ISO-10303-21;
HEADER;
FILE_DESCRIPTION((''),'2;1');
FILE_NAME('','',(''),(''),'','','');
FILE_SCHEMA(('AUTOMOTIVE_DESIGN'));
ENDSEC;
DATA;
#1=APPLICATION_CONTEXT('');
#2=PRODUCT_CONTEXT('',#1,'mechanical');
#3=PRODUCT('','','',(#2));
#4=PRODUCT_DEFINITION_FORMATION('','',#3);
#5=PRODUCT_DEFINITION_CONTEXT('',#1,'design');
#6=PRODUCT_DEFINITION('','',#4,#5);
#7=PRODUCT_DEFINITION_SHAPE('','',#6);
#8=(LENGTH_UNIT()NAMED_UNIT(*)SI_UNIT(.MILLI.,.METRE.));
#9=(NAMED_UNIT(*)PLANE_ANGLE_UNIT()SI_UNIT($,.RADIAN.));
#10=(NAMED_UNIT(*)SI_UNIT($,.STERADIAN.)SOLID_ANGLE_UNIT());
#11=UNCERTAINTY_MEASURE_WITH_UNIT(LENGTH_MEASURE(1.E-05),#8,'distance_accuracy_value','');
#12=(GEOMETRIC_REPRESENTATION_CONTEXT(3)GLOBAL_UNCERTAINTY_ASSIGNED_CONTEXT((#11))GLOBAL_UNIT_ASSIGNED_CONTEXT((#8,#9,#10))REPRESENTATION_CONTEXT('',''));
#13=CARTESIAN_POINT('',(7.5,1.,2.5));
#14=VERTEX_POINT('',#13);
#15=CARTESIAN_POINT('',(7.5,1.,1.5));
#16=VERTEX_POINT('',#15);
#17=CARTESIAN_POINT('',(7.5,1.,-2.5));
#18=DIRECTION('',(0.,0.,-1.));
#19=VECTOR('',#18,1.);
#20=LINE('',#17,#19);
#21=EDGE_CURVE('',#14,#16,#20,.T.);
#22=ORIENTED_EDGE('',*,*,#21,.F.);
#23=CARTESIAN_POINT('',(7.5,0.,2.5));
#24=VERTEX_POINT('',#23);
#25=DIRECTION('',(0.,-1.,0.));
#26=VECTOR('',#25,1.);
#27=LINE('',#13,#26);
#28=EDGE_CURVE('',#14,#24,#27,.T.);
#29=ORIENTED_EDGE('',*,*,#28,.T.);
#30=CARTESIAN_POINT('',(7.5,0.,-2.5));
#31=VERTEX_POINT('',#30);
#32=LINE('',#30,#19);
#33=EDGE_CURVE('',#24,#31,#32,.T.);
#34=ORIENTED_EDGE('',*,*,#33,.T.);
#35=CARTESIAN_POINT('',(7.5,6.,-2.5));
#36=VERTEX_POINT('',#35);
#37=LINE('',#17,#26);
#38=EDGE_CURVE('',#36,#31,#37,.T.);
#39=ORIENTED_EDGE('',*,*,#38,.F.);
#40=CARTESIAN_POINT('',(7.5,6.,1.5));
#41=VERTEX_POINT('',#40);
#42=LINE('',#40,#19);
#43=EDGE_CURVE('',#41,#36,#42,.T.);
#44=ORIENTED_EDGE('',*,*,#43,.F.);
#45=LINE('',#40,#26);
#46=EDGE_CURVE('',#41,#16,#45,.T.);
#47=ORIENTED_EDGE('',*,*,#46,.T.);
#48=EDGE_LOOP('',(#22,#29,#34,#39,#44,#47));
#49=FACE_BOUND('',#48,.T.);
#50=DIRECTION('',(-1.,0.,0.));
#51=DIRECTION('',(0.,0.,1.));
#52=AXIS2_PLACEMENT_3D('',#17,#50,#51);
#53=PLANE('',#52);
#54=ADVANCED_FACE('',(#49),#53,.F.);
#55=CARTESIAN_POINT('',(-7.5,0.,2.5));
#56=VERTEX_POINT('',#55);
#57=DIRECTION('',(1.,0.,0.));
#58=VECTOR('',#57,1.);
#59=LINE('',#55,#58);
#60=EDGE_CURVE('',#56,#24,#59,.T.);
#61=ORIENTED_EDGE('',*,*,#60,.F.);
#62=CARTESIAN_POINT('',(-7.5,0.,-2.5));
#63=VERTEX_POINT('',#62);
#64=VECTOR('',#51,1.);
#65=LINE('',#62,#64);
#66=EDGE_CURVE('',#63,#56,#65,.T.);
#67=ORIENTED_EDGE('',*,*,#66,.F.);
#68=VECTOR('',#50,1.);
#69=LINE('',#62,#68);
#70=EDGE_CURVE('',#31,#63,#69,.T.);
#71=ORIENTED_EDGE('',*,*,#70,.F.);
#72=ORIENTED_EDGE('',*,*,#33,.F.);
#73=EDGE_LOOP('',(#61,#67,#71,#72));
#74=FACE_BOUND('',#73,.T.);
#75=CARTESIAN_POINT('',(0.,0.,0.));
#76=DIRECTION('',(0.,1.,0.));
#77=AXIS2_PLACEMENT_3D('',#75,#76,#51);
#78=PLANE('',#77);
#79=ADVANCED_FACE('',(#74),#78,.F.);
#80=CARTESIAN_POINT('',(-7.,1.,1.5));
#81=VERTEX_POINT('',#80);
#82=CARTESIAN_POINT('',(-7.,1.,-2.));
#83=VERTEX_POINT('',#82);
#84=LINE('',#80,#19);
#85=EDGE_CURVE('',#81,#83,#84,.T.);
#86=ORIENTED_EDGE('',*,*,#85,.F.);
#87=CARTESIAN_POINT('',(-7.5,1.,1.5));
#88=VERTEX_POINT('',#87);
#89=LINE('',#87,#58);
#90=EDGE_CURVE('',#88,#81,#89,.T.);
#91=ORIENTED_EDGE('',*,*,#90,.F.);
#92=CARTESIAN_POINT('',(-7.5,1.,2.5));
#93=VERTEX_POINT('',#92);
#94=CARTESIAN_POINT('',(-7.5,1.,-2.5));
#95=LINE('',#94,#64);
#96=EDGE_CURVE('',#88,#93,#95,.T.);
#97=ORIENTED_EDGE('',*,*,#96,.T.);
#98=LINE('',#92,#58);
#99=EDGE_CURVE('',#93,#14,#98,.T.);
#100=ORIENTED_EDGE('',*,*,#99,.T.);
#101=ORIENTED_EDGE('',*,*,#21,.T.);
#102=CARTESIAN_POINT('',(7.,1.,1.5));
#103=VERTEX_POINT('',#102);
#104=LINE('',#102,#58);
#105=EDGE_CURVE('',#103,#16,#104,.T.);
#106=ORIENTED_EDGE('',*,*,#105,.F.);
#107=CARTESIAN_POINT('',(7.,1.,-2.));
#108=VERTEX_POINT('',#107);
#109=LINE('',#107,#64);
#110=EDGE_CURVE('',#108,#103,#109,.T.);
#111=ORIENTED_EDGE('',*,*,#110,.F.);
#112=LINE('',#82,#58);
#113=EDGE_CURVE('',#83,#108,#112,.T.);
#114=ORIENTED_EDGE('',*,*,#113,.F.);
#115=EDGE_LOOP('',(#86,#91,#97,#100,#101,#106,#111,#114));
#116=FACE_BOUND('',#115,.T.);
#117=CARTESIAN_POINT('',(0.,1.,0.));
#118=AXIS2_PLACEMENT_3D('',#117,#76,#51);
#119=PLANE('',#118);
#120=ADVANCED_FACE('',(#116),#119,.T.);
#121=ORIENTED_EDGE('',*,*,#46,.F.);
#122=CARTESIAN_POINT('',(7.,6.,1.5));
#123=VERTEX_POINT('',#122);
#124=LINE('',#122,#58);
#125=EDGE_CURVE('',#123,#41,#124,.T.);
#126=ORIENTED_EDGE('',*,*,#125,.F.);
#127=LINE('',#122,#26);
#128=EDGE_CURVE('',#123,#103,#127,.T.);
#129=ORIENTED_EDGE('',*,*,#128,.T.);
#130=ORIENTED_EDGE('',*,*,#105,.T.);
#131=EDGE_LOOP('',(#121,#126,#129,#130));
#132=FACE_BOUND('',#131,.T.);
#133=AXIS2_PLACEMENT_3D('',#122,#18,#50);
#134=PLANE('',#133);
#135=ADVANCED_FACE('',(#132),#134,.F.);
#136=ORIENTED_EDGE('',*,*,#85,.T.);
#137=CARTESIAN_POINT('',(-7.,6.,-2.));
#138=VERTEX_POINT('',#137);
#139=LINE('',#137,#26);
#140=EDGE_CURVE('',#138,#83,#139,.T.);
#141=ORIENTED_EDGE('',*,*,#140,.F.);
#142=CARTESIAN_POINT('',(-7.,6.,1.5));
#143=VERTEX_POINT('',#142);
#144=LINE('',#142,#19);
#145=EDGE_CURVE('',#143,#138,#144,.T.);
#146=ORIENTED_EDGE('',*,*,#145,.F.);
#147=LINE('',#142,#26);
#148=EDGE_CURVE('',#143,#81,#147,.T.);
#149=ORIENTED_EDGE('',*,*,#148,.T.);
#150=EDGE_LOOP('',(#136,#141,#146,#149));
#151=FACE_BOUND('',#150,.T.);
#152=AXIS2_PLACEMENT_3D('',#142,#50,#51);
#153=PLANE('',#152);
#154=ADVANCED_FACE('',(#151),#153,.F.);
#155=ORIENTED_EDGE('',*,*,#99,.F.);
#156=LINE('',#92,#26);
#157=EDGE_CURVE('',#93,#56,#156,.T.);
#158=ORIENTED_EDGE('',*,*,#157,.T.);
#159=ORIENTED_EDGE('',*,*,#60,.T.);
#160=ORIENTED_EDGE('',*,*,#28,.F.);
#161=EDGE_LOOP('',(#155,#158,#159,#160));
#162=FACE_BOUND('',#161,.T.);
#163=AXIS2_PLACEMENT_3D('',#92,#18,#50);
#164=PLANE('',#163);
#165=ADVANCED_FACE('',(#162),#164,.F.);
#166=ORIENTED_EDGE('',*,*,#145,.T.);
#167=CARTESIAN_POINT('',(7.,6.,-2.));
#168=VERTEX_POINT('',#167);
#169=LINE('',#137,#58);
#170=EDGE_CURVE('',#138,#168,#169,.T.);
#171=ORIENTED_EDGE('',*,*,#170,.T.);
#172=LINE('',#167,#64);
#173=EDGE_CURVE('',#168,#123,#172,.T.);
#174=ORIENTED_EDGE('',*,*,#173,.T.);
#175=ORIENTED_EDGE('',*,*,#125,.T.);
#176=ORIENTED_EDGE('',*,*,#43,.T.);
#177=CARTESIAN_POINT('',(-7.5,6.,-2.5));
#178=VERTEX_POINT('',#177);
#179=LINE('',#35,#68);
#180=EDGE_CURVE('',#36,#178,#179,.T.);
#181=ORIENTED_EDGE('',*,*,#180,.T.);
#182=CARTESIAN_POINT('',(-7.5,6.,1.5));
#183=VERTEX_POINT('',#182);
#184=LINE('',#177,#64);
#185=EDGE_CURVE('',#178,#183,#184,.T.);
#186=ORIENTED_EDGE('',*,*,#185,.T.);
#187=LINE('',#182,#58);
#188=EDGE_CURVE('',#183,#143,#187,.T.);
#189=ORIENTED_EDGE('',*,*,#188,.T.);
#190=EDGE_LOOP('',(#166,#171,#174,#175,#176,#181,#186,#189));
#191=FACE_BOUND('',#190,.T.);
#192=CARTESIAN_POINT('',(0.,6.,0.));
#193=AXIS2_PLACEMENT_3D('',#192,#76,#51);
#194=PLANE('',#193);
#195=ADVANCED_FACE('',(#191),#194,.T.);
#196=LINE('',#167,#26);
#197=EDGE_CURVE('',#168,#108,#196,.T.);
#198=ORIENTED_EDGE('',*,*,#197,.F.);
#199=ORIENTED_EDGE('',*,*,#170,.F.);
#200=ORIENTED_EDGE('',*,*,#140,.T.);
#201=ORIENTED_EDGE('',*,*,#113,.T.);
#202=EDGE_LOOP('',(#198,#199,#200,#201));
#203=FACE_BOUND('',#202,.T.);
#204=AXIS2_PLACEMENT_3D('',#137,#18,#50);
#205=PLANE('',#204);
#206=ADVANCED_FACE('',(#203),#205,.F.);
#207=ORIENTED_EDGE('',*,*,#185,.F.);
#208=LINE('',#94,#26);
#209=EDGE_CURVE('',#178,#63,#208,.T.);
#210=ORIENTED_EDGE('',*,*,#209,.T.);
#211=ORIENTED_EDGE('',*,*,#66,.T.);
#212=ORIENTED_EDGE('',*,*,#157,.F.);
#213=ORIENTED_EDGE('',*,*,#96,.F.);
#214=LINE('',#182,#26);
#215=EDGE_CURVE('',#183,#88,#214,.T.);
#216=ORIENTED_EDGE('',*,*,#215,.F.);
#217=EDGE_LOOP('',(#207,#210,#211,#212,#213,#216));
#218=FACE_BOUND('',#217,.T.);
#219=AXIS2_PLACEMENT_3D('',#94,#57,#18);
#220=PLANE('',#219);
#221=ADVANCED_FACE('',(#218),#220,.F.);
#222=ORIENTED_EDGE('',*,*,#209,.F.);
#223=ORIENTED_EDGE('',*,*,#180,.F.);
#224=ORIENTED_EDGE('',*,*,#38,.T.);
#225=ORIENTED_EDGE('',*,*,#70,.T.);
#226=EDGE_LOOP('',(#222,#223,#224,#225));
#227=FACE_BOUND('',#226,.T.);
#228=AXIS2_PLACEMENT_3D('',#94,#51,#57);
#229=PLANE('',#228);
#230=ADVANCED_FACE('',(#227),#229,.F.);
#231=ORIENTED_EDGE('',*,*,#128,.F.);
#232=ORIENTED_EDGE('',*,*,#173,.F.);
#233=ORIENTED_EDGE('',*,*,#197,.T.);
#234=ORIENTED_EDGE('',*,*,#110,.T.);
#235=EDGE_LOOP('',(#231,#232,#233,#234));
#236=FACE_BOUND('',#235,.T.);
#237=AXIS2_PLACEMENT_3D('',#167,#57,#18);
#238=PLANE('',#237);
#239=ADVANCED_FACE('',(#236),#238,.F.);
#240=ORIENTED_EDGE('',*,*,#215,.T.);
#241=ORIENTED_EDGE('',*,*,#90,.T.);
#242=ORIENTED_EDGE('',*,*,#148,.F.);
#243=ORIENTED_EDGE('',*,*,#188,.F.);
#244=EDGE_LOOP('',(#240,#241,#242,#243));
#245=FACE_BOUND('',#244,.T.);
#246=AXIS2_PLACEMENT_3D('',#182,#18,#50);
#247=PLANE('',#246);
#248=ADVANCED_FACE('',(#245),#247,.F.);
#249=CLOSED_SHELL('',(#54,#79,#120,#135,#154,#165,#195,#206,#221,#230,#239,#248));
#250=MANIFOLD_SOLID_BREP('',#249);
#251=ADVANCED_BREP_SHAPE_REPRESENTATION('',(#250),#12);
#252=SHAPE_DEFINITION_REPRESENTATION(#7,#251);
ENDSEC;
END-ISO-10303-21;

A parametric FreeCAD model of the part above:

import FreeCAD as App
import Part
import Sketcher
Q = App.Units.Quantity

doc = App.newDocument("Part")
body = doc.addObject("PartDesign::Body", "Body")

sketch1 = body.newObject("Sketcher::SketchObject", "Sketch")
sketch1.AttachmentSupport = (doc.getObject("XZ_Plane"), [""])
sketch1.MapMode = "FlatFace"
sketch1.addGeometry([
    Part.LineSegment(App.Vector(-8, -2, 0), App.Vector(-8, 2, 0)),
    Part.LineSegment(App.Vector(-8, 2, 0), App.Vector(8, 2, 0)),
    Part.LineSegment(App.Vector(8, 2, 0), App.Vector(8, -2, 0)),
    Part.LineSegment(App.Vector(8, -2, 0), App.Vector(-8, -2, 0)),
], False)
sketch1.addConstraint([
    Sketcher.Constraint("Coincident", 0, 2, 1, 1),
    Sketcher.Constraint("Coincident", 1, 2, 2, 1),
    Sketcher.Constraint("Coincident", 2, 2, 3, 1),
    Sketcher.Constraint("Coincident", 3, 2, 0, 1),
    Sketcher.Constraint("Vertical", 0),
    Sketcher.Constraint("Horizontal", 1),
    Sketcher.Constraint("Vertical", 2),
    Sketcher.Constraint("Horizontal", 3),
    Sketcher.Constraint("Symmetric", 0, 2, 2, 2, -1, 1),
    Sketcher.Constraint("DistanceX", 1, 1, 1, 2, Q("15 mm")),
    Sketcher.Constraint("DistanceY", 0, 1, 0, 2, Q("5 mm")),
])
pad1 = body.newObject("PartDesign::Pad", "Pad")
pad1.Profile = sketch1
pad1.Length = 1
pad1.Reversed = True

sketch2 = body.newObject("Sketcher::SketchObject", "Sketch001")
sketch2.AttachmentSupport = (doc.getObject("XZ_Plane"), [""])
sketch2.MapMode = "FlatFace"
sketch2.AttachmentOffset = App.Placement(App.Vector(0, 0, -1), App.Rotation())
sketch2.addGeometry([
    Part.LineSegment(App.Vector(-7.5, 1.5, 0), App.Vector(-7, 1.5, 0)),
    Part.LineSegment(App.Vector(-7, 1.5, 0), App.Vector(-7, -2, 0)),
    Part.LineSegment(App.Vector(-7, -2, 0), App.Vector(7, -2, 0)),
    Part.LineSegment(App.Vector(7, -2, 0), App.Vector(7, 1.5, 0)),
    Part.LineSegment(App.Vector(7, 1.5, 0), App.Vector(7.5, 1.5, 0)),
    Part.LineSegment(App.Vector(7.5, 1.5, 0), App.Vector(7.5, -2.5, 0)),
    Part.LineSegment(App.Vector(7.5, -2.5, 0), App.Vector(-7.5, -2.5, 0)),
    Part.LineSegment(App.Vector(-7.5, -2.5, 0), App.Vector(-7.5, 1.5, 0)),
], False)
sketch2.addConstraint([
    Sketcher.Constraint("Coincident", 0, 2, 1, 1),
    Sketcher.Constraint("Coincident", 1, 2, 2, 1),
    Sketcher.Constraint("Coincident", 2, 2, 3, 1),
    Sketcher.Constraint("Coincident", 3, 2, 4, 1),
    Sketcher.Constraint("Coincident", 4, 2, 5, 1),
    Sketcher.Constraint("Coincident", 5, 2, 6, 1),
    Sketcher.Constraint("Coincident", 6, 2, 7, 1),
    Sketcher.Constraint("Coincident", 7, 2, 0, 1),
    Sketcher.Constraint("Horizontal", 0),
    Sketcher.Constraint("Vertical", 1),
    Sketcher.Constraint("Horizontal", 2),
    Sketcher.Constraint("Vertical", 3),
    Sketcher.Constraint("Horizontal", 4),
    Sketcher.Constraint("Vertical", 5),
    Sketcher.Constraint("Horizontal", 6),
    Sketcher.Constraint("Vertical", 7),
    Sketcher.Constraint("Symmetric", 0, 2, 3, 2, -2),
    Sketcher.Constraint("Equal", 0, 4),
    Sketcher.Constraint("DistanceX", 2, 1, 2, 2, Q("14 mm")),
    Sketcher.Constraint("DistanceX", 6, 2, 6, 1, Q("15 mm")),
    Sketcher.Constraint("DistanceY", 5, 2, 5, 1, Q("4 mm")),
    Sketcher.Constraint("DistanceY", 1, 2, 1, 1, Q("3.5 mm")),
    Sketcher.Constraint("DistanceY", 1, 2, -1, 1, Q("2 mm")),
])
pad2 = body.newObject("PartDesign::Pad", "Pad001")
pad2.Profile = sketch2
pad2.Length = 5
pad2.Reversed = True

doc.recompute()
